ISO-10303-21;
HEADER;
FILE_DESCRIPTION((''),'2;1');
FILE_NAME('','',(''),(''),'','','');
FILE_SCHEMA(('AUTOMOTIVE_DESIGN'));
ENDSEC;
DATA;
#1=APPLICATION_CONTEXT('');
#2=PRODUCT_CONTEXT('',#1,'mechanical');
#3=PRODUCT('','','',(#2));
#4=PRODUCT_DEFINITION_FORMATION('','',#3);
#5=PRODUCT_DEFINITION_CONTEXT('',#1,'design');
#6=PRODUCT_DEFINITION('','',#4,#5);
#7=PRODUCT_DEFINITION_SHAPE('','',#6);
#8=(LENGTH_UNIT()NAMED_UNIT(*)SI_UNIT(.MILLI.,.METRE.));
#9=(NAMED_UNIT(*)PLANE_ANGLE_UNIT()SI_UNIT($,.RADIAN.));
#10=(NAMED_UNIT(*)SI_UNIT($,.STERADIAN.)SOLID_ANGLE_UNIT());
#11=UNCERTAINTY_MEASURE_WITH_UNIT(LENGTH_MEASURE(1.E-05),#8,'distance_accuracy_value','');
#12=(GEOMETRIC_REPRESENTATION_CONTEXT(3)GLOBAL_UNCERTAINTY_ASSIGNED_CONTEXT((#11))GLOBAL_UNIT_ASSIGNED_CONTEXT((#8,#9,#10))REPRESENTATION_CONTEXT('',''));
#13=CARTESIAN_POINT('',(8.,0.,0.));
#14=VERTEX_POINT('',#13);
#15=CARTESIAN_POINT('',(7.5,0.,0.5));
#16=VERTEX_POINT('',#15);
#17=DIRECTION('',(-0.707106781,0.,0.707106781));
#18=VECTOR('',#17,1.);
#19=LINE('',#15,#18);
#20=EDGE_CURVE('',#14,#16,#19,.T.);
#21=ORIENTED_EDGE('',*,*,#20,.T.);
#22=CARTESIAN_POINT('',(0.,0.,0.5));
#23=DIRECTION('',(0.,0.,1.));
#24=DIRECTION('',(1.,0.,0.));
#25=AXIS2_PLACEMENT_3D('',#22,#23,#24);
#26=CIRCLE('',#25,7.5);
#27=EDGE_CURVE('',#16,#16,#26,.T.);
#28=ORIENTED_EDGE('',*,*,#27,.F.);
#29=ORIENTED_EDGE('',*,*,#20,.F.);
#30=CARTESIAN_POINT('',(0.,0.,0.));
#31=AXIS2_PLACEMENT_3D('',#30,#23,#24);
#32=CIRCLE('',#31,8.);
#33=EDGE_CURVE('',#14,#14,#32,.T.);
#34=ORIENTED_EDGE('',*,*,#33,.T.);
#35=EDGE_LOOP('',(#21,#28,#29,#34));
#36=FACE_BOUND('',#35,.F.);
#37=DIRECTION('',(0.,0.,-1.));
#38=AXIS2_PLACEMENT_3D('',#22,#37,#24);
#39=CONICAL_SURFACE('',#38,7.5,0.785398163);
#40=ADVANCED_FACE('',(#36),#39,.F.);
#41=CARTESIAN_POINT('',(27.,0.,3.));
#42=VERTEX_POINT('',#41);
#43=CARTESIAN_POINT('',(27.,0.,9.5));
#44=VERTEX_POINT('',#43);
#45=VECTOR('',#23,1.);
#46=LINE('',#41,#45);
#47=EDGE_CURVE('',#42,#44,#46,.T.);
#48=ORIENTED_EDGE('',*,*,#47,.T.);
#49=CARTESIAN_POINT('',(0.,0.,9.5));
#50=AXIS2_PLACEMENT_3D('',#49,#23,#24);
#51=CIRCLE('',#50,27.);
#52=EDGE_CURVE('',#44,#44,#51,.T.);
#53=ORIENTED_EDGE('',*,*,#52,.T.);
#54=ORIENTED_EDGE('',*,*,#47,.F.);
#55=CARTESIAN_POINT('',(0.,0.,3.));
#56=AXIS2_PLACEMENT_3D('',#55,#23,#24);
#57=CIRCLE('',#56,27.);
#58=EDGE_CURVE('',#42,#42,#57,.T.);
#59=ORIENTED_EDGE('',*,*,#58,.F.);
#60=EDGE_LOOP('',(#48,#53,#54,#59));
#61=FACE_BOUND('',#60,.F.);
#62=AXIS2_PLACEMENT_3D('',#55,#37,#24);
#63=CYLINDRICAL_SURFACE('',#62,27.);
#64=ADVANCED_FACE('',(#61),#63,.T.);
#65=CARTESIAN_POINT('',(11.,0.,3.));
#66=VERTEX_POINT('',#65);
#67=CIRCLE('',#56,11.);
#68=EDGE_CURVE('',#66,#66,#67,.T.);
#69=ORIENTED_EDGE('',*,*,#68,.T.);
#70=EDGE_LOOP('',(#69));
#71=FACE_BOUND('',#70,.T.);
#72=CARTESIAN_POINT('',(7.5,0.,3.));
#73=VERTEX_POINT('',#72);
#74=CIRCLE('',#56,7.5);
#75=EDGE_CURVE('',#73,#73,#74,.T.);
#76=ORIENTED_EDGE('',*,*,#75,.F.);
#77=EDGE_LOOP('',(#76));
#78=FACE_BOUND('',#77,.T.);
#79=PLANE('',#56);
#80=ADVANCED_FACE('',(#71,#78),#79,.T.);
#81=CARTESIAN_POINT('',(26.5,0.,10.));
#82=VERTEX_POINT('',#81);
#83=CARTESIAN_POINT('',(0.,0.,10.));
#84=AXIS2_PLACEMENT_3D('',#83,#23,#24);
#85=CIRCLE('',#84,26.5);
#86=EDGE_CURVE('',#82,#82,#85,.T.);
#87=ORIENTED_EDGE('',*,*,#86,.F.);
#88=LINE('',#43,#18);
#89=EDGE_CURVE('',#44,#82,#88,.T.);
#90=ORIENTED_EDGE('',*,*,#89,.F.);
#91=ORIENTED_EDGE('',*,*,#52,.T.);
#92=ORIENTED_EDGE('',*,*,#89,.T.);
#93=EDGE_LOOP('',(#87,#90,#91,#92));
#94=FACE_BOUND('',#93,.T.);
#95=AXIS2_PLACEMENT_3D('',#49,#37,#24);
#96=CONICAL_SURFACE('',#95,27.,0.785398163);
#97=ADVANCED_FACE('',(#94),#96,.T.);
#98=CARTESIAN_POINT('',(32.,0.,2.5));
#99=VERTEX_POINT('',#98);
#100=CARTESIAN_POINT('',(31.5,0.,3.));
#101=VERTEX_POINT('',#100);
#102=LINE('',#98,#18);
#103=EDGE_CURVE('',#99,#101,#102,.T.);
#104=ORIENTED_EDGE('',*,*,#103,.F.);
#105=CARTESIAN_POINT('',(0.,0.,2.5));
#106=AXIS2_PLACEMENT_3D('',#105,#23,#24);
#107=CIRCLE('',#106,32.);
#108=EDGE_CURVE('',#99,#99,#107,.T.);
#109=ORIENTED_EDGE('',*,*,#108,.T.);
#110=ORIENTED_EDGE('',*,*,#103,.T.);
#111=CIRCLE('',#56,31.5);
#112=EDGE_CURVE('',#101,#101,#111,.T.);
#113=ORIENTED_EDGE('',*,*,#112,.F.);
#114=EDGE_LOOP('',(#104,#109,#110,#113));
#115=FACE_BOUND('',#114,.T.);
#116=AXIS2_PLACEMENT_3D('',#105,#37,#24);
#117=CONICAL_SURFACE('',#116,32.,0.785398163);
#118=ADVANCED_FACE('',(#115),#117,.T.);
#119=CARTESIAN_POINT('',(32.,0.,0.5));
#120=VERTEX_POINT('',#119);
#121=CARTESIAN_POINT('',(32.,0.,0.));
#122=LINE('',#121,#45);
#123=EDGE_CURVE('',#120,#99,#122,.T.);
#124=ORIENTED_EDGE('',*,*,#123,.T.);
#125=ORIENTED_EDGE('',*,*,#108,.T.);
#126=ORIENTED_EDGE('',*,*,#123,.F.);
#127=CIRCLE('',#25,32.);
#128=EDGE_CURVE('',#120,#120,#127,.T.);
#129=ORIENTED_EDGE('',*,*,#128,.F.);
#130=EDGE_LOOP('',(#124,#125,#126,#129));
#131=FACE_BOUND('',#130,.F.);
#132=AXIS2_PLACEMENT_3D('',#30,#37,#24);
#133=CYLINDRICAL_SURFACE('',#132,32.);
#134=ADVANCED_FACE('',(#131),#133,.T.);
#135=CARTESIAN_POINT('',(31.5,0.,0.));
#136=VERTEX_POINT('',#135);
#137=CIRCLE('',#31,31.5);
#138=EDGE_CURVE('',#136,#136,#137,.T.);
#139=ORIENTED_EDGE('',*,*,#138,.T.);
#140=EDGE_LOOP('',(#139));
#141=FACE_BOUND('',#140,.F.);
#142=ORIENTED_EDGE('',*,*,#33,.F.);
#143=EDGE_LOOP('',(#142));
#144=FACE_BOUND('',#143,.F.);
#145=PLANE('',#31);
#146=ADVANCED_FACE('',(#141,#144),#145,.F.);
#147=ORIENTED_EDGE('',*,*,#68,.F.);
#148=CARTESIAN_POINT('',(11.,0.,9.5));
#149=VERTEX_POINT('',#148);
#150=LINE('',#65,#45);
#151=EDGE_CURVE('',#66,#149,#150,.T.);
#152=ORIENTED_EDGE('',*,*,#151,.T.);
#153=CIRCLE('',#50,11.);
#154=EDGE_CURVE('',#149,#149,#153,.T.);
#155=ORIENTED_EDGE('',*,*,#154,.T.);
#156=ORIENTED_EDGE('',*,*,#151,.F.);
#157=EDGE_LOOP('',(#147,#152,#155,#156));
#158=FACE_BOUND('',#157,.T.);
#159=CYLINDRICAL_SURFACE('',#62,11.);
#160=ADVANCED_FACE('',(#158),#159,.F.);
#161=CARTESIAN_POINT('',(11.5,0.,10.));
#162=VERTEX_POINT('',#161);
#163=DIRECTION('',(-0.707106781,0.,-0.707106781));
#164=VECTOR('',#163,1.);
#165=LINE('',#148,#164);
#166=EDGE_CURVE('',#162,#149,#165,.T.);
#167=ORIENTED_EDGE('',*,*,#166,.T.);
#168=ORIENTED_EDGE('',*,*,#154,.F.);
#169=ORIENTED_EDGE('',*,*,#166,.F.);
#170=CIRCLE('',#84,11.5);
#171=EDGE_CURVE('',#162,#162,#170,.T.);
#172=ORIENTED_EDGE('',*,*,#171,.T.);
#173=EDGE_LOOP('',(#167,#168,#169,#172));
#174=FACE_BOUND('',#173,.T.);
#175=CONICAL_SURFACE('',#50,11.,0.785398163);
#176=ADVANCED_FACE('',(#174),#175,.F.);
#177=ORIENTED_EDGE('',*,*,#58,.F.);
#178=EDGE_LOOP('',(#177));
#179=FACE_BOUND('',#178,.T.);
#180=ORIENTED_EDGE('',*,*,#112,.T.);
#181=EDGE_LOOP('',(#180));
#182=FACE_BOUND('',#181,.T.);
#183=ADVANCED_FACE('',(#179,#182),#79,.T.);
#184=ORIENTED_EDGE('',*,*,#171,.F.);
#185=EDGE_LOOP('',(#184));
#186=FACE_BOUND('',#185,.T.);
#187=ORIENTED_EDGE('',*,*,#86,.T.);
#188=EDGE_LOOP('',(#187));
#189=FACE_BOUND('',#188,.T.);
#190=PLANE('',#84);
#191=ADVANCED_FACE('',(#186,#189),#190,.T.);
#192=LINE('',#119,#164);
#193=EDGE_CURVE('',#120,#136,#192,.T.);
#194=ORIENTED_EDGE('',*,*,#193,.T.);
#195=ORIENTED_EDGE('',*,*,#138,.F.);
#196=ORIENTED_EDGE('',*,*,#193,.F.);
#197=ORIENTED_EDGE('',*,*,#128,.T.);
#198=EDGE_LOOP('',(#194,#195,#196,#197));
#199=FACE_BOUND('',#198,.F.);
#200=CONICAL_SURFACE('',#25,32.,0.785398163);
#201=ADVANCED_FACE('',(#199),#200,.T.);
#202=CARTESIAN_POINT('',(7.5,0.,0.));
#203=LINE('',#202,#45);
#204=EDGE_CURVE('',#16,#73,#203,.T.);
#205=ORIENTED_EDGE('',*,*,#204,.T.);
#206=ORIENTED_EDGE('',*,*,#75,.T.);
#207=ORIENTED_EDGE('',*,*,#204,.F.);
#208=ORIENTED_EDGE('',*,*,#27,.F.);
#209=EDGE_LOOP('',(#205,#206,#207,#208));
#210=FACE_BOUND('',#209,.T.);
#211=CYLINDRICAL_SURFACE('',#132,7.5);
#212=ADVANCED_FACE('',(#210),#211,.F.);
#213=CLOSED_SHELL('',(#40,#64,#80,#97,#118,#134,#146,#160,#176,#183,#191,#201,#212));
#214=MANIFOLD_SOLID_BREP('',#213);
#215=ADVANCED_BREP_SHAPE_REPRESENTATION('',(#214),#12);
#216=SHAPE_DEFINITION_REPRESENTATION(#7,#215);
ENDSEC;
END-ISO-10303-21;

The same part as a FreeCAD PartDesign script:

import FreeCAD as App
import Part
import Sketcher
Q = App.Units.Quantity


def edges_at(feature, points):
    """Names of the edges that pass closest to the given points."""
    edges = feature.Shape.Edges
    near = lambda p: min(range(len(edges)), key=lambda i: edges[i].distToShape(Part.Vertex(*p))[0])
    return sorted({f"Edge{near(p) + 1}" for p in points})

doc = App.newDocument("Part")
body = doc.addObject("PartDesign::Body", "Body")

# Sketch on XY plane
sketch1 = doc.addObject("Sketcher::SketchObject", "Sketch")
body.addObject(sketch1)
sketch1.AttachmentSupport = (doc.XY_Plane, [""])
sketch1.MapMode = "FlatFace"
sketch1.addGeometry([
    Part.Circle(App.Vector(0, 0, 0), App.Vector(0, 0, 1), 32),
    Part.Circle(App.Vector(0, 0, 0), App.Vector(0, 0, 1), 8),
], False)
sketch1.addConstraint([
    Sketcher.Constraint("Coincident", 0, 3, -1, 1),
    Sketcher.Constraint("Coincident", 1, 3, -1, 1),
    Sketcher.Constraint("Diameter", 0, Q("64 mm")),
    Sketcher.Constraint("Diameter", 1, Q("15 mm")),
])
pad1 = doc.addObject("PartDesign::Pad", "Pad")
body.addObject(pad1)
pad1.Profile = sketch1
pad1.Length = 3

# Sketch on XY plane
sketch2 = doc.addObject("Sketcher::SketchObject", "Sketch001")
body.addObject(sketch2)
sketch2.AttachmentSupport = (doc.XY_Plane, [""])
sketch2.MapMode = "FlatFace"
sketch2.AttachmentOffset = App.Placement(App.Vector(0, 0, 3), App.Rotation())
sketch2.addGeometry([
    Part.Circle(App.Vector(0, 0, 0), App.Vector(0, 0, 1), 27),
    Part.Circle(App.Vector(0, 0, 0), App.Vector(0, 0, 1), 11),
], False)
sketch2.addConstraint([
    Sketcher.Constraint("Coincident", 0, 3, -1, 1),
    Sketcher.Constraint("Coincident", 1, 3, -1, 1),
    Sketcher.Constraint("Diameter", 0, Q("54 mm")),
    Sketcher.Constraint("Diameter", 1, Q("22 mm")),
])
pad2 = doc.addObject("PartDesign::Pad", "Pad001")
body.addObject(pad2)
pad2.Profile = sketch2
pad2.Length = 7
doc.recompute()

chamfer = doc.addObject("PartDesign::Chamfer", "Chamfer")
body.addObject(chamfer)
chamfer.Base = (pad2, edges_at(pad2, [
    (-27, 0, 10),
    (-32, 0, 3),
    (-11, 0, 10),
    (-32, 0, 0),
    (-7.5, 0, 0),
]))
chamfer.Size = 0.5

doc.recompute()
